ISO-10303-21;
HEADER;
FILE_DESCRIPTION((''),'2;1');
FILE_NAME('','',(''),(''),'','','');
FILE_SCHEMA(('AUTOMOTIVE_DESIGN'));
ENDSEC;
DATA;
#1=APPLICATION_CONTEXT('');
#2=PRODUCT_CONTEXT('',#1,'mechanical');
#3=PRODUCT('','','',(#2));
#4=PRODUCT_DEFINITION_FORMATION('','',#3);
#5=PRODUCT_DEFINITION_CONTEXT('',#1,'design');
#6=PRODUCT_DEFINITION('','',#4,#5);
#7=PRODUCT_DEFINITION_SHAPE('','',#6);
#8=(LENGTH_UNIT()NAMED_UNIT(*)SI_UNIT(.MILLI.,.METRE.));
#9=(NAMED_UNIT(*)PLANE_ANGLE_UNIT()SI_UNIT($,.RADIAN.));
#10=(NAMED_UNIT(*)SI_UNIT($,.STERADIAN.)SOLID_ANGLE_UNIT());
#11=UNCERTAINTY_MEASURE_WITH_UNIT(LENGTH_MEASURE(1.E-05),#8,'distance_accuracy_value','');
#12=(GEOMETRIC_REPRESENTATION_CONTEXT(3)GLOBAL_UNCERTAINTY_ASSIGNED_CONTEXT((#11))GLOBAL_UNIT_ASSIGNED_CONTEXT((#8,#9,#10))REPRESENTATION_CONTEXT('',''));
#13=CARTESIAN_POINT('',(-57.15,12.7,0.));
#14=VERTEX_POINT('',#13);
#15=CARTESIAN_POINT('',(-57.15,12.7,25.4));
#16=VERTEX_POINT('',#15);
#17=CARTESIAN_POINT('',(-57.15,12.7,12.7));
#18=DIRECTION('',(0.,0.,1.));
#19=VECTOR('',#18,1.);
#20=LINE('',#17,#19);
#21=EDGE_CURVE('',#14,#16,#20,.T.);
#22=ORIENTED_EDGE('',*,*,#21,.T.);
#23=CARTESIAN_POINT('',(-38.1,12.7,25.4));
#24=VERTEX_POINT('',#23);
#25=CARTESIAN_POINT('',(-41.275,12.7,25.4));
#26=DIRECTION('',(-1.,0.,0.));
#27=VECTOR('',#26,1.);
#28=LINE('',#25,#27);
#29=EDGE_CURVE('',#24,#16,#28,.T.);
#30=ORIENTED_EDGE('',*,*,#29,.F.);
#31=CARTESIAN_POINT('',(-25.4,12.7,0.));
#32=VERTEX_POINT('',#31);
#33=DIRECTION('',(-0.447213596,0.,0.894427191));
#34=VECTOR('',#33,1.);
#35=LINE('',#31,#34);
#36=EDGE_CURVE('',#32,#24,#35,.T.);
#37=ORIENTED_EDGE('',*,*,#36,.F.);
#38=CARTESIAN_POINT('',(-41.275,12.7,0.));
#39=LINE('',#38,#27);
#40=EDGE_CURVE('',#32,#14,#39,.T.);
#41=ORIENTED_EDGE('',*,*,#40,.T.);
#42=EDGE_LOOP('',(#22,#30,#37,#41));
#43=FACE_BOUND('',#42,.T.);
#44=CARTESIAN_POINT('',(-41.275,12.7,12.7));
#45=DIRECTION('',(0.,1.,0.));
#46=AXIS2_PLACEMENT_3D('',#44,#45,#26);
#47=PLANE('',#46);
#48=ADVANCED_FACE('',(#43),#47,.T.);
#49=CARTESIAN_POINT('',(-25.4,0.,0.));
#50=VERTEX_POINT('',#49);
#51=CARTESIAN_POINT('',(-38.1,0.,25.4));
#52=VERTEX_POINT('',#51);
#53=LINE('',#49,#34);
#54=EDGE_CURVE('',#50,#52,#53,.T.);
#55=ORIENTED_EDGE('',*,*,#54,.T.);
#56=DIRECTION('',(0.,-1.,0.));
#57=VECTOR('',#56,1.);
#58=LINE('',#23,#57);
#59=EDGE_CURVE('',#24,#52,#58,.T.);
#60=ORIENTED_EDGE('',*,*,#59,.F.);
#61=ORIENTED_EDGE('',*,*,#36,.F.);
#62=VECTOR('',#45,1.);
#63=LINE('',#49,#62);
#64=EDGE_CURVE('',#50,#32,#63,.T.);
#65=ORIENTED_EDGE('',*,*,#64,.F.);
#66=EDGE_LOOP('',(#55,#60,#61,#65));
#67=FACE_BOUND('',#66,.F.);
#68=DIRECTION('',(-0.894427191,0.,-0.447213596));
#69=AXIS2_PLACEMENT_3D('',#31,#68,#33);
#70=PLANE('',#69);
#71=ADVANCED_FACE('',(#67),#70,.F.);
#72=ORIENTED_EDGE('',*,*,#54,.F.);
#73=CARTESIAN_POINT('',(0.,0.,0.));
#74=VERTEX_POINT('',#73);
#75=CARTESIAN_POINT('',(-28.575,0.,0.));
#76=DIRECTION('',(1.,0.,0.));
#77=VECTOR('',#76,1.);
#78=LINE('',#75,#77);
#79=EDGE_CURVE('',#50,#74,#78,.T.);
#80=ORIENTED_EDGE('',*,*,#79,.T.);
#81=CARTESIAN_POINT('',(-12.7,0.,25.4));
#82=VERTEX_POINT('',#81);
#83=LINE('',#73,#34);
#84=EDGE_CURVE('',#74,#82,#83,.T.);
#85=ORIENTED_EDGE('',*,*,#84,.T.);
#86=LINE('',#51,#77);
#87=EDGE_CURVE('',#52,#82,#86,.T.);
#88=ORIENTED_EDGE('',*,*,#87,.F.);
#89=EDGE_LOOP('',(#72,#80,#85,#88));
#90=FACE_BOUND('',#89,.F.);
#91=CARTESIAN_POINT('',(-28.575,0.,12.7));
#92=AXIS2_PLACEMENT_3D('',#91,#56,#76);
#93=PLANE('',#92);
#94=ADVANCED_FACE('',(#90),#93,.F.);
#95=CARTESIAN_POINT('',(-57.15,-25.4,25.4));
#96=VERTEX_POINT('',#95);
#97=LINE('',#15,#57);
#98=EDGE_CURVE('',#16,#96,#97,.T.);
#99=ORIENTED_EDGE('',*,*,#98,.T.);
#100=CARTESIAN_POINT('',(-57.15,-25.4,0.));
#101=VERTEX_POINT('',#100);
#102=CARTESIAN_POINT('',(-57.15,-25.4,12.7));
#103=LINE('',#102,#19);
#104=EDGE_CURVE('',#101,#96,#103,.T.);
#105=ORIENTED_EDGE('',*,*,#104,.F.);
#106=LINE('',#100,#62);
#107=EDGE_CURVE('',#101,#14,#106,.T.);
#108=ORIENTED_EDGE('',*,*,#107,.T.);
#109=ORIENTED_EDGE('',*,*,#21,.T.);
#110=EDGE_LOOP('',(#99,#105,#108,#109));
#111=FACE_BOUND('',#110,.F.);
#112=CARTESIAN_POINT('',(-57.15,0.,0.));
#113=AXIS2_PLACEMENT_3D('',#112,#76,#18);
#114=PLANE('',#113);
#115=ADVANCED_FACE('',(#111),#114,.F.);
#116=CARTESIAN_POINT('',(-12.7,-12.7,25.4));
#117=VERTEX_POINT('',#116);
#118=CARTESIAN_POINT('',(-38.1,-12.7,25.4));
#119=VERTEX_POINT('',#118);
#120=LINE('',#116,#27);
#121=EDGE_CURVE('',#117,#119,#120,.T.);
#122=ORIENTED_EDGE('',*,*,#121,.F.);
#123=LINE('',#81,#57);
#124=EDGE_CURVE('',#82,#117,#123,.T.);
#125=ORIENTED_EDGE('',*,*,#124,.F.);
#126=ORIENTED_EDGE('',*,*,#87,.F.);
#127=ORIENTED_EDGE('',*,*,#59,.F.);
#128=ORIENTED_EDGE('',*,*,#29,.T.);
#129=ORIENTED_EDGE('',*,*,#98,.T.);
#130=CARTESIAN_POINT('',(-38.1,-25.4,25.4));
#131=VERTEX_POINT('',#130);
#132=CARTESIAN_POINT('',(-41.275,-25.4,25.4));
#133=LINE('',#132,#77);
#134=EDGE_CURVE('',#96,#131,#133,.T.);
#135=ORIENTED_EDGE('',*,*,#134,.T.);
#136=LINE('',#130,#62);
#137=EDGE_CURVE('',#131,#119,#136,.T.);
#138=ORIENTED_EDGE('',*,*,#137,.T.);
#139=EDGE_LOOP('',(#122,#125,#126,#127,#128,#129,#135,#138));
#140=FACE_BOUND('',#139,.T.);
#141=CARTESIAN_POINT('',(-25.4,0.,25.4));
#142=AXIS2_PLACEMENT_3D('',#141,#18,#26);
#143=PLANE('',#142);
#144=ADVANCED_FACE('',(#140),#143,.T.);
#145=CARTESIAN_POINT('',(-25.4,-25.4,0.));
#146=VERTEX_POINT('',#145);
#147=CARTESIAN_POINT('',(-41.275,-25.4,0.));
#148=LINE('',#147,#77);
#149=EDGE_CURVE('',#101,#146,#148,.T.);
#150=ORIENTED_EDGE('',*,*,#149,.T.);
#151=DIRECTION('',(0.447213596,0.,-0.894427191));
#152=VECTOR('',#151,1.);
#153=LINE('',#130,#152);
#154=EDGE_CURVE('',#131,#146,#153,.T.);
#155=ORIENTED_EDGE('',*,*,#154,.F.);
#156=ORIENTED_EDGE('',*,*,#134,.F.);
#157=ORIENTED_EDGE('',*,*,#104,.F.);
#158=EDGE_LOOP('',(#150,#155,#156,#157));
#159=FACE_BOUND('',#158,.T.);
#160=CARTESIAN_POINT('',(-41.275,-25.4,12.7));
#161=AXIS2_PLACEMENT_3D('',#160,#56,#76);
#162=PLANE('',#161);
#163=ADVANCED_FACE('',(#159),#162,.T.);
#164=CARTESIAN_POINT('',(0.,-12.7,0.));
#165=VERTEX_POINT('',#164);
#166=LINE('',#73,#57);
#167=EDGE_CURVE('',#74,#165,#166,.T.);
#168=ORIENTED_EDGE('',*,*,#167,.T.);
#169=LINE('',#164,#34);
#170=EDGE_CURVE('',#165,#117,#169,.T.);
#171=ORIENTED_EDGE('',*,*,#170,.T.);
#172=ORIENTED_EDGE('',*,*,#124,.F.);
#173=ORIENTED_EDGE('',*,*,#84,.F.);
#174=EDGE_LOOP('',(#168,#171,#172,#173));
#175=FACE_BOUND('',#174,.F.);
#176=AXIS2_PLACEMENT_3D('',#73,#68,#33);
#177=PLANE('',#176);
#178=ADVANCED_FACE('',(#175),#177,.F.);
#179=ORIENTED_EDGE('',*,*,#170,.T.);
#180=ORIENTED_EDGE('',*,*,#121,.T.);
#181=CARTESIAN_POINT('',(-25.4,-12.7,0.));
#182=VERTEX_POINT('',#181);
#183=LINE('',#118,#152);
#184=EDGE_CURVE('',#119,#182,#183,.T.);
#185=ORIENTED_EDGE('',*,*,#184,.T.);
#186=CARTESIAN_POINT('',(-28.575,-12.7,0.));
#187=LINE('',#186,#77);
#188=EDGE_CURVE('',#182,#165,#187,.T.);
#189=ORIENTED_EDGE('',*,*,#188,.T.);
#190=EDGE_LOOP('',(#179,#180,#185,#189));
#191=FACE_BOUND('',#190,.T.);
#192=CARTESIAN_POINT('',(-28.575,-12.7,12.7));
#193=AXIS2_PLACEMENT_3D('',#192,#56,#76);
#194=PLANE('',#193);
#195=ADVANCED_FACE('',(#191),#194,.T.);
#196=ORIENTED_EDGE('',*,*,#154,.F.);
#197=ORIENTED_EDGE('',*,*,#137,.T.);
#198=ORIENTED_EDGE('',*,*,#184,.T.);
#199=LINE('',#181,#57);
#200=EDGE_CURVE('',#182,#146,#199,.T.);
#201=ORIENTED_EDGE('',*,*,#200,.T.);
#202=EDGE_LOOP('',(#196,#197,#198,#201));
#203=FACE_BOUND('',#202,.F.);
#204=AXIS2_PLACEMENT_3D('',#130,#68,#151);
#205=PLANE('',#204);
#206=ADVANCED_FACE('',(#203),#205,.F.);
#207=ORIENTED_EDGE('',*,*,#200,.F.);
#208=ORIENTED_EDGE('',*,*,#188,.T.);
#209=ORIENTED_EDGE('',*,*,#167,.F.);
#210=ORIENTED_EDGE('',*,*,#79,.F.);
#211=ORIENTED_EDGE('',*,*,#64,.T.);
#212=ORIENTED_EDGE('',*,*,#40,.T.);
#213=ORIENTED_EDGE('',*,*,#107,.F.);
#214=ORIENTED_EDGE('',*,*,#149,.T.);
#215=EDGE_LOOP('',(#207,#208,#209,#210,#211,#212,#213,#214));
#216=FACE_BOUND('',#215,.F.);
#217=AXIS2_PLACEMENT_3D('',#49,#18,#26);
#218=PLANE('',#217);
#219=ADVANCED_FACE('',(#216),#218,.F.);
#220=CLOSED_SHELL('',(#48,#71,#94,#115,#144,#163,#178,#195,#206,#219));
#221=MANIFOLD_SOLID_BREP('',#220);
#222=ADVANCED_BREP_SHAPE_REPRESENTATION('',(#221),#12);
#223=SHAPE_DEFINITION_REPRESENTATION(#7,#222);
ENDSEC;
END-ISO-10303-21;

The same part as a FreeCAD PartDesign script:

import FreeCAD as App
import Part
import Sketcher
from FreeCAD import Vector
Q = App.Units.Quantity

doc = App.newDocument("Part")
body = doc.addObject("PartDesign::Body", "Body")

# Sketch on XZ plane
sketch1 = body.newObject("Sketcher::SketchObject", "Sketch")
sketch1.AttachmentSupport = (doc.getObject("XZ_Plane"), [""])
sketch1.MapMode = "FlatFace"
sketch1.addGeometry([
    Part.LineSegment(Vector(-57, 25, 0), Vector(-57, 0, 0)),
    Part.LineSegment(Vector(-57, 0, 0), Vector(0, 0, 0)),
    Part.LineSegment(Vector(0, 0, 0), Vector(0, 25, 0)),
    Part.LineSegment(Vector(0, 25, 0), Vector(-57, 25, 0)),
], False)
sketch1.addConstraint([
    Sketcher.Constraint("Coincident", 0, 2, 1, 1),
    Sketcher.Constraint("Coincident", 1, 2, 2, 1),
    Sketcher.Constraint("Coincident", 2, 2, 3, 1),
    Sketcher.Constraint("Coincident", 3, 2, 0, 1),
    Sketcher.Constraint("Vertical", 0),
    Sketcher.Constraint("Horizontal", 1),
    Sketcher.Constraint("Vertical", 2),
    Sketcher.Constraint("Horizontal", 3),
    Sketcher.Constraint("Coincident", 1, 2, -1, 1),
    Sketcher.Constraint("DistanceY", 0, 2, 0, 1, Q("1 in")),
    Sketcher.Constraint("DistanceX", 1, 1, 1, 2, Q("2.25 in")),
])
pad1 = body.newObject("PartDesign::Pad", "Pad")
pad1.Profile = sketch1
pad1.Length = Q("0.5 in")

# Sketch on XZ plane
sketch2 = body.newObject("Sketcher::SketchObject", "Sketch001")
sketch2.AttachmentSupport = (doc.getObject("XZ_Plane"), [""])
sketch2.MapMode = "FlatFace"
sketch2.AttachmentOffset = App.Placement(Vector(0, 0, 0.5 * 25.4), App.Rotation())
sketch2.addGeometry([
    Part.LineSegment(Vector(-57, 25, 0), Vector(-57, 0, 0)),
    Part.LineSegment(Vector(-57, 0, 0), Vector(-25, 0, 0)),
    Part.LineSegment(Vector(-25, 0, 0), Vector(-25, 25, 0)),
    Part.LineSegment(Vector(-25, 25, 0), Vector(-57, 25, 0)),
], False)
sketch2.addConstraint([
    Sketcher.Constraint("Coincident", 0, 2, 1, 1),
    Sketcher.Constraint("Coincident", 1, 2, 2, 1),
    Sketcher.Constraint("Coincident", 2, 2, 3, 1),
    Sketcher.Constraint("Coincident", 3, 2, 0, 1),
    Sketcher.Constraint("Vertical", 0),
    Sketcher.Constraint("Horizontal", 1),
    Sketcher.Constraint("Vertical", 2),
    Sketcher.Constraint("Horizontal", 3),
    Sketcher.Constraint("PointOnObject", 0, 2, -1),
    Sketcher.Constraint("DistanceY", 0, 2, 0, 1, Q("1 in")),
    Sketcher.Constraint("DistanceX", 1, 2, -1, 1, Q("1 in")),
    Sketcher.Constraint("DistanceX", 1, 1, 1, 2, Q("1.25 in")),
])
pad2 = body.newObject("PartDesign::Pad", "Pad001")
pad2.Profile = sketch2
pad2.Length = Q("0.5 in")

# Sketch on XZ plane
sketch3 = body.newObject("Sketcher::SketchObject", "Sketch002")
sketch3.AttachmentSupport = (doc.getObject("XZ_Plane"), [""])
sketch3.MapMode = "FlatFace"
sketch3.addGeometry([
    Part.LineSegment(Vector(-25, 25, 0), Vector(-25, 0, 0)),
    Part.LineSegment(Vector(-25, 0, 0), Vector(-57, 0, 0)),
    Part.LineSegment(Vector(-57, 0, 0), Vector(-57, 25, 0)),
    Part.LineSegment(Vector(-57, 25, 0), Vector(-25, 25, 0)),
], False)
sketch3.addConstraint([
    Sketcher.Constraint("Coincident", 0, 2, 1, 1),
    Sketcher.Constraint("Coincident", 1, 2, 2, 1),
    Sketcher.Constraint("Coincident", 2, 2, 3, 1),
    Sketcher.Constraint("Coincident", 3, 2, 0, 1),
    Sketcher.Constraint("Vertical", 0),
    Sketcher.Constraint("Horizontal", 1),
    Sketcher.Constraint("Vertical", 2),
    Sketcher.Constraint("Horizontal", 3),
    Sketcher.Constraint("PointOnObject", 0, 2, -1),
    Sketcher.Constraint("DistanceY", 0, 2, 0, 1, Q("1 in")),
    Sketcher.Constraint("DistanceX", 0, 2, -1, 1, Q("1 in")),
    Sketcher.Constraint("DistanceX", 1, 2, 1, 1, Q("1.25 in")),
])
pad3 = body.newObject("PartDesign::Pad", "Pad002")
pad3.Profile = sketch3
pad3.Length = Q("0.5 in")
pad3.Reversed = True

# Sketch on XZ plane
sketch4 = body.newObject("Sketcher::SketchObject", "Sketch003")
sketch4.AttachmentSupport = (doc.getObject("XZ_Plane"), [""])
sketch4.MapMode = "FlatFace"
sketch4.AttachmentOffset = App.Placement(Vector(0, 0, -0.5 * 25.4), App.Rotation())
sketch4.addGeometry([
    Part.LineSegment(Vector(-25, 25, 0), Vector(-25, 0, 0)),
    Part.LineSegment(Vector(-25, 0, 0), Vector(-38, 25, 0)),
    Part.LineSegment(Vector(-38, 25, 0), Vector(-25, 25, 0)),
], False)
sketch4.addConstraint([
    Sketcher.Constraint("Coincident", 0, 2, 1, 1),
    Sketcher.Constraint("Coincident", 1, 2, 2, 1),
    Sketcher.Constraint("Coincident", 2, 2, 0, 1),
    Sketcher.Constraint("Vertical", 0),
    Sketcher.Constraint("Horizontal", 2),
    Sketcher.Constraint("PointOnObject", 0, 2, -1),
    Sketcher.Constraint("DistanceY", 0, 2, 0, 1, Q("1 in")),
    Sketcher.Constraint("DistanceX", 2, 1, 2, 2, Q("0.5 in")),
    Sketcher.Constraint("DistanceX", 0, 2, -1, 1, Q("1 in")),
])
pocket1 = body.newObject("PartDesign::Pocket", "Pocket")
pocket1.Profile = sketch4
pocket1.Length = Q("0.5 in")
pocket1.Reversed = True

# Sketch on XZ plane
sketch5 = body.newObject("Sketcher::SketchObject", "Sketch004")
sketch5.AttachmentSupport = (doc.getObject("XZ_Plane"), [""])
sketch5.MapMode = "FlatFace"
sketch5.addGeometry([
    Part.LineSegment(Vector(0, 25, 0), Vector(0, 0, 0)),
    Part.LineSegment(Vector(0, 0, 0), Vector(-13, 25, 0)),
    Part.LineSegment(Vector(-13, 25, 0), Vector(0, 25, 0)),
], False)
sketch5.addConstraint([
    Sketcher.Constraint("Coincident", 0, 2, 1, 1),
    Sketcher.Constraint("Coincident", 1, 2, 2, 1),
    Sketcher.Constraint("Coincident", 2, 2, 0, 1),
    Sketcher.Constraint("Vertical", 0),
    Sketcher.Constraint("Horizontal", 2),
    Sketcher.Constraint("Coincident", 0, 2, -1, 1),
    Sketcher.Constraint("DistanceY", 0, 2, 0, 1, Q("1 in")),
    Sketcher.Constraint("DistanceX", 2, 1, 2, 2, Q("0.5 in")),
])
pocket2 = body.newObject("PartDesign::Pocket", "Pocket001")
pocket2.Profile = sketch5
pocket2.Length = Q("0.5 in")
pocket2.Reversed = True

# Sketch on XZ plane
sketch6 = body.newObject("Sketcher::SketchObject", "Sketch005")
sketch6.AttachmentSupport = (doc.getObject("XZ_Plane"), [""])
sketch6.MapMode = "FlatFace"
sketch6.AttachmentOffset = App.Placement(Vector(0, 0, 1 * 25.4), App.Rotation())
sketch6.addGeometry([
    Part.LineSegment(Vector(-38, 25, 0), Vector(-25, 0, 0)),
    Part.LineSegment(Vector(-25, 0, 0), Vector(-25, 25, 0)),
    Part.LineSegment(Vector(-25, 25, 0), Vector(-38, 25, 0)),
], False)
sketch6.addConstraint([
    Sketcher.Constraint("Coincident", 0, 2, 1, 1),
    Sketcher.Constraint("Coincident", 1, 2, 2, 1),
    Sketcher.Constraint("Coincident", 2, 2, 0, 1),
    Sketcher.Constraint("Vertical", 1),
    Sketcher.Constraint("Horizontal", 2),
    Sketcher.Constraint("PointOnObject", 0, 2, -1),
    Sketcher.Constraint("DistanceY", 1, 1, 1, 2, Q("1 in")),
    Sketcher.Constraint("DistanceX", 2, 2, 2, 1, Q("0.5 in")),
    Sketcher.Constraint("DistanceX", 0, 2, -1, 1, Q("1 in")),
])
pocket3 = body.newObject("PartDesign::Pocket", "Pocket002")
pocket3.Profile = sketch6
pocket3.Length = Q("0.5 in")

doc.recompute()
